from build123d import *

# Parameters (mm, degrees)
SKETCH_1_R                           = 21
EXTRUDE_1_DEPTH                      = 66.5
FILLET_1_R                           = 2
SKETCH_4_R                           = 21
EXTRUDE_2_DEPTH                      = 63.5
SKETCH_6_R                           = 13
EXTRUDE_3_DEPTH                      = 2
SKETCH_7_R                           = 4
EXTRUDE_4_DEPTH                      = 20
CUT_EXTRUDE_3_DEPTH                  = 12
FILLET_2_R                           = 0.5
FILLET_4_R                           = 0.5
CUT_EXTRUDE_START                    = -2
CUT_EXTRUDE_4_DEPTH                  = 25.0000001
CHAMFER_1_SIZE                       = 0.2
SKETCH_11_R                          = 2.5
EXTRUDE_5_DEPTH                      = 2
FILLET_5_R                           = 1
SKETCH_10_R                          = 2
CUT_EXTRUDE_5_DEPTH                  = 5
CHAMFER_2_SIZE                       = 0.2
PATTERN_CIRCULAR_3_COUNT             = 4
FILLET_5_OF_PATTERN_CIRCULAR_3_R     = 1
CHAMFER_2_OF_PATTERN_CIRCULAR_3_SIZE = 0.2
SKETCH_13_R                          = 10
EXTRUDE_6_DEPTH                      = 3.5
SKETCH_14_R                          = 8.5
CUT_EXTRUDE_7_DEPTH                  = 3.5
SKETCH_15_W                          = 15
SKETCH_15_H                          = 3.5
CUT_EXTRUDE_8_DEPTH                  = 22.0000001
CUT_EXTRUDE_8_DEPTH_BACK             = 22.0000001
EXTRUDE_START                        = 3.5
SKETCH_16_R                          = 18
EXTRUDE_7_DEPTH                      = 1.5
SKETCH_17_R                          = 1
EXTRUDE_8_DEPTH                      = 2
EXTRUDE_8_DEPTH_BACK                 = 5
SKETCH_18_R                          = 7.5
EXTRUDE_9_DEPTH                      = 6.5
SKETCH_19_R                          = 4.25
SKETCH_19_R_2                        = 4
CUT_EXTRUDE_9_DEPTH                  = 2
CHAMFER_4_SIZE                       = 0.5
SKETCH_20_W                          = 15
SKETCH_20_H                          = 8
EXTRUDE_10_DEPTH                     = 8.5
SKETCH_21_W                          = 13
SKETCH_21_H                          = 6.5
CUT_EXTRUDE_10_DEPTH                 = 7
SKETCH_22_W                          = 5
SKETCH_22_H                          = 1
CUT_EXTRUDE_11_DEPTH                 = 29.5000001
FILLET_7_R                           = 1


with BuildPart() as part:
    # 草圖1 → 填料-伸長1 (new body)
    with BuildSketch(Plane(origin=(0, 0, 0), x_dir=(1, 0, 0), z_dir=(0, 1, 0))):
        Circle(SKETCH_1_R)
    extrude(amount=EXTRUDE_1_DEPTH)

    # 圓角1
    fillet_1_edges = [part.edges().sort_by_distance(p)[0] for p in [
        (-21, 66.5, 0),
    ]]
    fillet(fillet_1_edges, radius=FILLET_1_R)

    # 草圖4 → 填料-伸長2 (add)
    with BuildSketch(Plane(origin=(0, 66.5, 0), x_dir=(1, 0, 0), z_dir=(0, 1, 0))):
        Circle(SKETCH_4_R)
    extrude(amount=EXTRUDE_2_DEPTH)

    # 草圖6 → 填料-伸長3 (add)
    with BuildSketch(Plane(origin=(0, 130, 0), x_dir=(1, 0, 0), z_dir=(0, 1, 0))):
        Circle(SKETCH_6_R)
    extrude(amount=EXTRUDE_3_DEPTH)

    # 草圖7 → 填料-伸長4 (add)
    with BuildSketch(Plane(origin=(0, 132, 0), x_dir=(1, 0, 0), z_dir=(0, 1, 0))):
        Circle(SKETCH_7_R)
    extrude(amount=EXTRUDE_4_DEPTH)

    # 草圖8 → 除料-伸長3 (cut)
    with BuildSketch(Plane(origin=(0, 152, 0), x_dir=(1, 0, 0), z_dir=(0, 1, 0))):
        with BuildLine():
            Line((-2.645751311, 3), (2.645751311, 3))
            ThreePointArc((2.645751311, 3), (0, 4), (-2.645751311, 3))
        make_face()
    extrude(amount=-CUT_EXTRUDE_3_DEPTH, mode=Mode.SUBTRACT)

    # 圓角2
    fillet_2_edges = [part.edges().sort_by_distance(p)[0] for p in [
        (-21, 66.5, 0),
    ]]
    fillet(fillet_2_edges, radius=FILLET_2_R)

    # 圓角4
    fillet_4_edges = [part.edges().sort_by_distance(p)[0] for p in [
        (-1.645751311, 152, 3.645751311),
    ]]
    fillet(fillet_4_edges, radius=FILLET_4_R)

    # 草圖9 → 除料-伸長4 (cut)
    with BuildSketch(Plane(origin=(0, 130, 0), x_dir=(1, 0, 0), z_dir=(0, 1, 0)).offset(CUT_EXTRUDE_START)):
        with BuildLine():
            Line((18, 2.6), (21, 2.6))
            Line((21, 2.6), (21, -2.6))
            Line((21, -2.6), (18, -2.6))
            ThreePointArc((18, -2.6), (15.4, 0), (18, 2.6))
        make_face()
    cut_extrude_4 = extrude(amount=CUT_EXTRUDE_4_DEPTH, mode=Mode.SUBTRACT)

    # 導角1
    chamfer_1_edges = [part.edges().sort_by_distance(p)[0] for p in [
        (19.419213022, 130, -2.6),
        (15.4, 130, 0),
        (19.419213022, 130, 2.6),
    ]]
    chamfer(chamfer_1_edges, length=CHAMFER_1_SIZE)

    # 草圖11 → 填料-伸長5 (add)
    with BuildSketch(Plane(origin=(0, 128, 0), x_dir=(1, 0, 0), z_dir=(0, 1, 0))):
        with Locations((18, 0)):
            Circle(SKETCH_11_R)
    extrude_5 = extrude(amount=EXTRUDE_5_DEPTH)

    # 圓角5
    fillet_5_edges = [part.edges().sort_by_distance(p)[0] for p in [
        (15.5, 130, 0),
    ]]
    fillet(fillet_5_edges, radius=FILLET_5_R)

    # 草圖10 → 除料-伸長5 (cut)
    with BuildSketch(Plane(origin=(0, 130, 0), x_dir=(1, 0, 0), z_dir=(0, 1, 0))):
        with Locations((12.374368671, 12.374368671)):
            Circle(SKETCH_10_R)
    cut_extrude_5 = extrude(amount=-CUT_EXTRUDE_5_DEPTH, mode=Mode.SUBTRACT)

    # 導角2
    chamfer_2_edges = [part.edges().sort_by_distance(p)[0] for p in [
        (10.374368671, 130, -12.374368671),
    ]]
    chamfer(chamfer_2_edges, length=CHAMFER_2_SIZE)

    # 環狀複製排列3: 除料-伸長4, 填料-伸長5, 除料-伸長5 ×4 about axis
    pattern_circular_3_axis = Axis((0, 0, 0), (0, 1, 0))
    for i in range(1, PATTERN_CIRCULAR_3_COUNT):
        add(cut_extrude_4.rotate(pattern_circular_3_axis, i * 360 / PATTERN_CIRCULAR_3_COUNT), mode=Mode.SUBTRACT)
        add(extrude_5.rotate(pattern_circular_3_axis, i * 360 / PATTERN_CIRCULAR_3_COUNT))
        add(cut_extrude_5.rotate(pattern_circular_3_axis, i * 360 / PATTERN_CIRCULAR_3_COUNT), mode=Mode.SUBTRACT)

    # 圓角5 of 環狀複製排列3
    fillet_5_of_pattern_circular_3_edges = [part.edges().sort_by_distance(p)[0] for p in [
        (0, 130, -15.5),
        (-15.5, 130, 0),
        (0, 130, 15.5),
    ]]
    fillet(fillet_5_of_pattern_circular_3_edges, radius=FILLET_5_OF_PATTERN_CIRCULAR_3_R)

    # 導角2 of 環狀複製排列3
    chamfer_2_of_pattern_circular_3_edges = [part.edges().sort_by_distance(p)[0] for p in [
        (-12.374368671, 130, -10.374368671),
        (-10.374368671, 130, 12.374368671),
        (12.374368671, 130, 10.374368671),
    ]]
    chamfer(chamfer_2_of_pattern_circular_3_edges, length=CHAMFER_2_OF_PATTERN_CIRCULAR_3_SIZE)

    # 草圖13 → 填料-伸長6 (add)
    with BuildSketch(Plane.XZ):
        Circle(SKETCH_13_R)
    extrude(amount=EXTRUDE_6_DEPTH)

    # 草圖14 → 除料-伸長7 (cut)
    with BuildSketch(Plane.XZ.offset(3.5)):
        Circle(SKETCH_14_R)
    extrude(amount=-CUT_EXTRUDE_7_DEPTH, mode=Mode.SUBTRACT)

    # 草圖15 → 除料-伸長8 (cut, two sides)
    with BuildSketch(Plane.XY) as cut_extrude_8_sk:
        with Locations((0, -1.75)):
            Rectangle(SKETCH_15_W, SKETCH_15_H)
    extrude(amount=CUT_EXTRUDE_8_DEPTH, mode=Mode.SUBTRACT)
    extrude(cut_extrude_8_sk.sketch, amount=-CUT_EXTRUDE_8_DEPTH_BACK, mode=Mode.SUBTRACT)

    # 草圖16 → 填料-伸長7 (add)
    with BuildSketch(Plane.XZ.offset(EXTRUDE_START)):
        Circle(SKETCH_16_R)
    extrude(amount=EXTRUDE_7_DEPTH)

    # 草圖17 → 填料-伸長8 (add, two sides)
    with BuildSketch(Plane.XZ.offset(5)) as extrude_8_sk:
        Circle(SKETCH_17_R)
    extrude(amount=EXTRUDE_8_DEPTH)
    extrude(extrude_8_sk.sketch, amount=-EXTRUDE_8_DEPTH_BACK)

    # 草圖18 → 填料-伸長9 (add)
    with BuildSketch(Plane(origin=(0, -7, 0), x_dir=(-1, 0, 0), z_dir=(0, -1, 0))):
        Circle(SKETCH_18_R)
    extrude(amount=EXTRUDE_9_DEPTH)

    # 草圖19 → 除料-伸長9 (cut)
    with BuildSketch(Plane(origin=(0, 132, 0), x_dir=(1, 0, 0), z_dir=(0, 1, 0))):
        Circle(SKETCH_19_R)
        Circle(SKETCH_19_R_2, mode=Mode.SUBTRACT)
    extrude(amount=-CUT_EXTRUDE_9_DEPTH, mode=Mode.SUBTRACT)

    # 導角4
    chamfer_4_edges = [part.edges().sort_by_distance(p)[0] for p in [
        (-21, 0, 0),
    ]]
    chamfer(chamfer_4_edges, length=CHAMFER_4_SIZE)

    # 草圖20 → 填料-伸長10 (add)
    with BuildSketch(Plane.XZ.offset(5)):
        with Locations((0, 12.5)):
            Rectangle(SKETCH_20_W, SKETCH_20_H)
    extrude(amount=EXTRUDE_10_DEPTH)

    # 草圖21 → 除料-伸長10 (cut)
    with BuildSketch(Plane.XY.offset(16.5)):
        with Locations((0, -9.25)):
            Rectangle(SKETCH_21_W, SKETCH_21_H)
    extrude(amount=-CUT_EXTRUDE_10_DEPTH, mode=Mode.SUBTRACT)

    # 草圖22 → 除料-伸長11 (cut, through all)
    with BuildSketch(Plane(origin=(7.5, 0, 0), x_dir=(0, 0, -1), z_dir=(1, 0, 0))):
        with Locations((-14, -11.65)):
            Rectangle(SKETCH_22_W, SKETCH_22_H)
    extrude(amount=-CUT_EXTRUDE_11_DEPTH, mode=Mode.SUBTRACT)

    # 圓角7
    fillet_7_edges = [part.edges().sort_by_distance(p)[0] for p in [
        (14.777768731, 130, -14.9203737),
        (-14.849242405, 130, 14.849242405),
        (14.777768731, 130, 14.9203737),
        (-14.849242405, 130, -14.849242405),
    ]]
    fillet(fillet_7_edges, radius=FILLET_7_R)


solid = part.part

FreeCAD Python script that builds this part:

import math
import FreeCAD as App
import Part
import Sketcher
Q = App.Units.Quantity


def edges_at(feature, points):
    """Names of the edges that pass closest to the given points."""
    edges = feature.Shape.Edges
    near = lambda p: min(range(len(edges)), key=lambda i: edges[i].distToShape(Part.Vertex(*p))[0])
    return sorted({f"Edge{near(p) + 1}" for p in points})


def add_polygon(sketch, points):
    """Adds a closed chain of lines whose ends are joined by coincident constraints."""
    first, n = sketch.GeometryCount, len(points)
    for a, b in zip(points, points[1:] + points[:1]):
        sketch.addGeometry(Part.LineSegment(App.Vector(*a, 0), App.Vector(*b, 0)), False)
    for i in range(n):
        sketch.addConstraint(Sketcher.Constraint("Coincident", first + i, 2, first + (i + 1) % n, 1))

doc = App.newDocument("Part")
body = doc.addObject("PartDesign::Body", "Body")

# Sketch on XZ plane
sketch1 = doc.addObject("Sketcher::SketchObject", "Sketch")
body.addObject(sketch1)
sketch1.AttachmentSupport = (doc.XZ_Plane, [""])
sketch1.MapMode = "FlatFace"
sketch1.addGeometry(Part.Circle(App.Vector(0, 0, 0), App.Vector(0, 0, 1), 21), False)
sketch1.addConstraint([
    Sketcher.Constraint("Coincident", 0, 3, -1, 1),
    Sketcher.Constraint("Diameter", 0, Q("42 mm")),
])
pad1 = doc.addObject("PartDesign::Pad", "Pad")
body.addObject(pad1)
pad1.Profile = sketch1
pad1.Length = 66.5
pad1.Reversed = True
doc.recompute()

fillet = doc.addObject("PartDesign::Fillet", "Fillet")
body.addObject(fillet)
fillet.Base = (pad1, edges_at(pad1, [(-21, 66.5, 0)]))
fillet.Radius = 2

# Sketch on XZ plane
sketch2 = doc.addObject("Sketcher::SketchObject", "Sketch001")
body.addObject(sketch2)
sketch2.AttachmentSupport = (doc.XZ_Plane, [""])
sketch2.MapMode = "FlatFace"
sketch2.AttachmentOffset = App.Placement(App.Vector(0, 0, -66.5), App.Rotation())
sketch2.addGeometry(Part.Circle(App.Vector(0, 0, 0), App.Vector(0, 0, 1), 21), False)
sketch2.addConstraint([
    Sketcher.Constraint("Coincident", 0, 3, -1, 1),
    Sketcher.Constraint("Diameter", 0, Q("42 mm")),
])
pad2 = doc.addObject("PartDesign::Pad", "Pad001")
body.addObject(pad2)
pad2.Profile = sketch2
pad2.Length = 63.5
pad2.Reversed = True

# Sketch on XZ plane
sketch3 = doc.addObject("Sketcher::SketchObject", "Sketch002")
body.addObject(sketch3)
sketch3.AttachmentSupport = (doc.XZ_Plane, [""])
sketch3.MapMode = "FlatFace"
sketch3.AttachmentOffset = App.Placement(App.Vector(0, 0, -130), App.Rotation())
sketch3.addGeometry(Part.Circle(App.Vector(0, 0, 0), App.Vector(0, 0, 1), 13), False)
sketch3.addConstraint([
    Sketcher.Constraint("Coincident", 0, 3, -1, 1),
    Sketcher.Constraint("Diameter", 0, Q("26 mm")),
])
pad3 = doc.addObject("PartDesign::Pad", "Pad002")
body.addObject(pad3)
pad3.Profile = sketch3
pad3.Length = 2
pad3.Reversed = True

# Sketch on XZ plane
sketch4 = doc.addObject("Sketcher::SketchObject", "Sketch003")
body.addObject(sketch4)
sketch4.AttachmentSupport = (doc.XZ_Plane, [""])
sketch4.MapMode = "FlatFace"
sketch4.AttachmentOffset = App.Placement(App.Vector(0, 0, -132), App.Rotation())
sketch4.addGeometry(Part.Circle(App.Vector(0, 0, 0), App.Vector(0, 0, 1), 4), False)
sketch4.addConstraint([
    Sketcher.Constraint("Coincident", 0, 3, -1, 1),
    Sketcher.Constraint("Diameter", 0, Q("8 mm")),
])
pad4 = doc.addObject("PartDesign::Pad", "Pad003")
body.addObject(pad4)
pad4.Profile = sketch4
pad4.Length = 20
pad4.Reversed = True

# Sketch on XZ plane
sketch5 = doc.addObject("Sketcher::SketchObject", "Sketch004")
body.addObject(sketch5)
sketch5.AttachmentSupport = (doc.XZ_Plane, [""])
sketch5.MapMode = "FlatFace"
sketch5.AttachmentOffset = App.Placement(App.Vector(0, 0, -152), App.Rotation())
sketch5.addGeometry([
    Part.LineSegment(App.Vector(-2.645751, -3, 0), App.Vector(2.645751, -3, 0)),
    Part.ArcOfCircle(Part.Circle(App.Vector(0, 0, 0), App.Vector(0, 0, 1), 4), math.radians(-131.409622), math.radians(-48.590378)),
], False)
sketch5.addConstraint([
    Sketcher.Constraint("Coincident", 0, 1, 1, 1),
    Sketcher.Constraint("Coincident", 1, 2, 0, 2),
    Sketcher.Constraint("Horizontal", 0),
    Sketcher.Constraint("Coincident", 1, 3, -1, 1),
    Sketcher.Constraint("Radius", 1, Q("4 mm")),
    Sketcher.Constraint("DistanceY", 0, 1, -1, 1, Q("3 mm")),
])
pocket1 = doc.addObject("PartDesign::Pocket", "Pocket")
body.addObject(pocket1)
pocket1.Profile = sketch5
pocket1.Length = 12
pocket1.Reversed = True
doc.recompute()

fillet2 = doc.addObject("PartDesign::Fillet", "Fillet001")
body.addObject(fillet2)
fillet2.Base = (pocket1, edges_at(pocket1, [(-21, 66.5, 0)]))
fillet2.Radius = 0.5
doc.recompute()

fillet3 = doc.addObject("PartDesign::Fillet", "Fillet002")
body.addObject(fillet3)
fillet3.Base = (fillet2, edges_at(fillet2, [(-1.646, 152, 3.646)]))
fillet3.Radius = 0.5

# Sketch on XZ plane
sketch6 = doc.addObject("Sketcher::SketchObject", "Sketch005")
body.addObject(sketch6)
sketch6.AttachmentSupport = (doc.XZ_Plane, [""])
sketch6.MapMode = "FlatFace"
sketch6.AttachmentOffset = App.Placement(App.Vector(0, 0, -128), App.Rotation())
sketch6.addGeometry([
    Part.LineSegment(App.Vector(21, -2.6, 0), App.Vector(18, -2.6, 0)),
    Part.ArcOfCircle(Part.Circle(App.Vector(18, 0, 0), App.Vector(0, 0, 1), 2.6), math.radians(90), math.radians(270)),
    Part.LineSegment(App.Vector(18, 2.6, 0), App.Vector(21, 2.6, 0)),
    Part.LineSegment(App.Vector(21, 2.6, 0), App.Vector(21, -2.6, 0)),
], False)
sketch6.addConstraint([
    Sketcher.Constraint("Tangent", 0, 2, 1, 2),
    Sketcher.Constraint("Tangent", 1, 1, 2, 1),
    Sketcher.Constraint("Coincident", 2, 2, 3, 1),
    Sketcher.Constraint("Coincident", 3, 2, 0, 1),
    Sketcher.Constraint("Horizontal", 0),
    Sketcher.Constraint("Horizontal", 2),
    Sketcher.Constraint("Vertical", 3),
    Sketcher.Constraint("PointOnObject", 1, 3, -1),
    Sketcher.Constraint("Radius", 1, Q("2.6 mm")),
    Sketcher.Constraint("DistanceX", 0, 2, 0, 1, Q("3 mm")),
    Sketcher.Constraint("DistanceX", -1, 1, 1, 3, Q("18 mm")),
])
pocket2 = doc.addObject("PartDesign::Pocket", "Pocket001")
body.addObject(pocket2)
pocket2.Profile = sketch6
pocket2.Length = 25
doc.recompute()

chamfer = doc.addObject("PartDesign::Chamfer", "Chamfer")
body.addObject(chamfer)
chamfer.Base = (pocket2, edges_at(pocket2, [(19.419, 130, -2.6), (15.4, 130, 0), (19.419, 130, 2.6)]))
chamfer.Size = 0.2

# Sketch on XZ plane
sketch7 = doc.addObject("Sketcher::SketchObject", "Sketch006")
body.addObject(sketch7)
sketch7.AttachmentSupport = (doc.XZ_Plane, [""])
sketch7.MapMode = "FlatFace"
sketch7.AttachmentOffset = App.Placement(App.Vector(0, 0, -128), App.Rotation())
sketch7.addGeometry(Part.Circle(App.Vector(18, 0, 0), App.Vector(0, 0, 1), 2.5), False)
sketch7.addConstraint([
    Sketcher.Constraint("PointOnObject", 0, 3, -1),
    Sketcher.Constraint("Diameter", 0, Q("5 mm")),
    Sketcher.Constraint("DistanceX", -1, 1, 0, 3, Q("18 mm")),
])
pad5 = doc.addObject("PartDesign::Pad", "Pad004")
body.addObject(pad5)
pad5.Profile = sketch7
pad5.Length = 2
pad5.Reversed = True
doc.recompute()

fillet4 = doc.addObject("PartDesign::Fillet", "Fillet003")
body.addObject(fillet4)
fillet4.Base = (pad5, edges_at(pad5, [(15.5, 130, 0)]))
fillet4.Radius = 1

# Sketch on XZ plane
sketch8 = doc.addObject("Sketcher::SketchObject", "Sketch007")
body.addObject(sketch8)
sketch8.AttachmentSupport = (doc.XZ_Plane, [""])
sketch8.MapMode = "FlatFace"
sketch8.AttachmentOffset = App.Placement(App.Vector(0, 0, -130), App.Rotation())
sketch8.addGeometry(Part.Circle(App.Vector(12.374369, -12.374369, 0), App.Vector(0, 0, 1), 2), False)
sketch8.addConstraint([
    Sketcher.Constraint("Diameter", 0, Q("4 mm")),
    Sketcher.Constraint("DistanceX", -1, 1, 0, 3, Q("12.374369 mm")),
    Sketcher.Constraint("DistanceY", 0, 3, -1, 1, Q("12.374369 mm")),
])
pocket3 = doc.addObject("PartDesign::Pocket", "Pocket002")
body.addObject(pocket3)
pocket3.Profile = sketch8
pocket3.Length = 5
pocket3.Reversed = True
doc.recompute()

chamfer2 = doc.addObject("PartDesign::Chamfer", "Chamfer001")
body.addObject(chamfer2)
chamfer2.Base = (pocket3, edges_at(pocket3, [(10.374, 130, -12.374)]))
chamfer2.Size = 0.2
doc.recompute()

polarpattern = doc.addObject("PartDesign::PolarPattern", "PolarPattern")
body.addObject(polarpattern)
polarpattern.Originals = [pocket2, pad5, pocket3]
polarpattern.Axis = (doc.Y_Axis, [""])
polarpattern.Angle = 360
polarpattern.Occurrences = 4
body.Tip = polarpattern
doc.recompute()

fillet5 = doc.addObject("PartDesign::Fillet", "Fillet004")
body.addObject(fillet5)
fillet5.Base = (polarpattern, edges_at(polarpattern, [(0, 130, -15.5), (-15.5, 130, 0), (0, 130, 15.5)]))
fillet5.Radius = 1
doc.recompute()

chamfer3 = doc.addObject("PartDesign::Chamfer", "Chamfer002")
body.addObject(chamfer3)
chamfer3.Base = (fillet5, edges_at(fillet5, [(-12.374, 130, -10.374), (-10.374, 130, 12.374), (12.374, 130, 10.374)]))
chamfer3.Size = 0.2

# Sketch on XZ plane
sketch9 = doc.addObject("Sketcher::SketchObject", "Sketch008")
body.addObject(sketch9)
sketch9.AttachmentSupport = (doc.XZ_Plane, [""])
sketch9.MapMode = "FlatFace"
sketch9.addGeometry(Part.Circle(App.Vector(0, 0, 0), App.Vector(0, 0, 1), 10), False)
sketch9.addConstraint([
    Sketcher.Constraint("Coincident", 0, 3, -1, 1),
    Sketcher.Constraint("Diameter", 0, Q("20 mm")),
])
pad6 = doc.addObject("PartDesign::Pad", "Pad005")
body.addObject(pad6)
pad6.Profile = sketch9
pad6.Length = 3.5

# Sketch on XZ plane
sketch10 = doc.addObject("Sketcher::SketchObject", "Sketch009")
body.addObject(sketch10)
sketch10.AttachmentSupport = (doc.XZ_Plane, [""])
sketch10.MapMode = "FlatFace"
sketch10.AttachmentOffset = App.Placement(App.Vector(0, 0, 3.5), App.Rotation())
sketch10.addGeometry(Part.Circle(App.Vector(0, 0, 0), App.Vector(0, 0, 1), 8.5), False)
sketch10.addConstraint([
    Sketcher.Constraint("Coincident", 0, 3, -1, 1),
    Sketcher.Constraint("Diameter", 0, Q("17 mm")),
])
pocket4 = doc.addObject("PartDesign::Pocket", "Pocket003")
body.addObject(pocket4)
pocket4.Profile = sketch10
pocket4.Length = 3.5

# Sketch on XY plane
sketch11 = doc.addObject("Sketcher::SketchObject", "Sketch010")
body.addObject(sketch11)
sketch11.AttachmentSupport = (doc.XY_Plane, [""])
sketch11.MapMode = "FlatFace"
add_polygon(sketch11, [(-7.5, 0), (-7.5, -3.5), (7.5, -3.5), (7.5, 0)])  # lines 0-3
sketch11.addConstraint([
    Sketcher.Constraint("Vertical", 0),
    Sketcher.Constraint("Horizontal", 1),
    Sketcher.Constraint("Vertical", 2),
    Sketcher.Constraint("Horizontal", 3),
    Sketcher.Constraint("Symmetric", 2, 2, 3, 2, -1, 1),
    Sketcher.Constraint("DistanceX", 1, 1, 1, 2, Q("15 mm")),
    Sketcher.Constraint("DistanceY", 0, 2, 0, 1, Q("3.5 mm")),
])
pocket5 = doc.addObject("PartDesign::Pocket", "Pocket004")
body.addObject(pocket5)
pocket5.Profile = sketch11
pocket5.Type = "ThroughAll"
pocket5.Midplane = True

# Sketch on XZ plane
sketch12 = doc.addObject("Sketcher::SketchObject", "Sketch011")
body.addObject(sketch12)
sketch12.AttachmentSupport = (doc.XZ_Plane, [""])
sketch12.MapMode = "FlatFace"
sketch12.AttachmentOffset = App.Placement(App.Vector(0, 0, 3.5), App.Rotation())
sketch12.addGeometry(Part.Circle(App.Vector(0, 0, 0), App.Vector(0, 0, 1), 18), False)
sketch12.addConstraint([
    Sketcher.Constraint("Coincident", 0, 3, -1, 1),
    Sketcher.Constraint("Diameter", 0, Q("36 mm")),
])
pad7 = doc.addObject("PartDesign::Pad", "Pad006")
body.addObject(pad7)
pad7.Profile = sketch12
pad7.Length = 1.5

# Sketch on XZ plane
sketch13 = doc.addObject("Sketcher::SketchObject", "Sketch012")
body.addObject(sketch13)
sketch13.AttachmentSupport = (doc.XZ_Plane, [""])
sketch13.MapMode = "FlatFace"
sketch13.AttachmentOffset = App.Placement(App.Vector(0, 0, 5), App.Rotation())
sketch13.addGeometry(Part.Circle(App.Vector(0, 0, 0), App.Vector(0, 0, 1), 1), False)
sketch13.addConstraint([
    Sketcher.Constraint("Coincident", 0, 3, -1, 1),
    Sketcher.Constraint("Diameter", 0, Q("2 mm")),
])
pad8 = doc.addObject("PartDesign::Pad", "Pad007")
body.addObject(pad8)
pad8.Profile = sketch13
pad8.Type = "TwoLengths"
pad8.Length = 2
pad8.Length2 = 5

# Sketch on XZ plane
sketch14 = doc.addObject("Sketcher::SketchObject", "Sketch013")
body.addObject(sketch14)
sketch14.AttachmentSupport = (doc.XZ_Plane, [""])
sketch14.MapMode = "FlatFace"
sketch14.AttachmentOffset = App.Placement(App.Vector(0, 0, 7), App.Rotation())
sketch14.addGeometry(Part.Circle(App.Vector(0, 0, 0), App.Vector(0, 0, 1), 7.5), False)
sketch14.addConstraint([
    Sketcher.Constraint("Coincident", 0, 3, -1, 1),
    Sketcher.Constraint("Diameter", 0, Q("15 mm")),
])
pad9 = doc.addObject("PartDesign::Pad", "Pad008")
body.addObject(pad9)
pad9.Profile = sketch14
pad9.Length = 6.5

# Sketch on XZ plane
sketch15 = doc.addObject("Sketcher::SketchObject", "Sketch014")
body.addObject(sketch15)
sketch15.AttachmentSupport = (doc.XZ_Plane, [""])
sketch15.MapMode = "FlatFace"
sketch15.AttachmentOffset = App.Placement(App.Vector(0, 0, -132), App.Rotation())
sketch15.addGeometry([
    Part.Circle(App.Vector(0, 0, 0), App.Vector(0, 0, 1), 4.25),
    Part.Circle(App.Vector(0, 0, 0), App.Vector(0, 0, 1), 4),
], False)
sketch15.addConstraint([
    Sketcher.Constraint("Coincident", 0, 3, -1, 1),
    Sketcher.Constraint("Coincident", 1, 3, -1, 1),
    Sketcher.Constraint("Diameter", 1, Q("8 mm")),
    Sketcher.Constraint("Diameter", 0, Q("8.5 mm")),
])
pocket6 = doc.addObject("PartDesign::Pocket", "Pocket005")
body.addObject(pocket6)
pocket6.Profile = sketch15
pocket6.Length = 2
pocket6.Reversed = True
doc.recompute()

chamfer4 = doc.addObject("PartDesign::Chamfer", "Chamfer003")
body.addObject(chamfer4)
chamfer4.Base = (pocket6, edges_at(pocket6, [(-21, 0, 0)]))
chamfer4.Size = 0.5

# Sketch on XZ plane
sketch16 = doc.addObject("Sketcher::SketchObject", "Sketch015")
body.addObject(sketch16)
sketch16.AttachmentSupport = (doc.XZ_Plane, [""])
sketch16.MapMode = "FlatFace"
sketch16.AttachmentOffset = App.Placement(App.Vector(0, 0, 5), App.Rotation())
add_polygon(sketch16, [(-7.5, 16.5), (-7.5, 8.5), (7.5, 8.5), (7.5, 16.5)])  # lines 0-3
sketch16.addConstraint([
    Sketcher.Constraint("Vertical", 0),
    Sketcher.Constraint("Horizontal", 1),
    Sketcher.Constraint("Vertical", 2),
    Sketcher.Constraint("Horizontal", 3),
    Sketcher.Constraint("DistanceX", 1, 1, 1, 2, Q("15 mm")),
    Sketcher.Constraint("DistanceY", 0, 2, 0, 1, Q("8 mm")),
    Sketcher.Constraint("DistanceX", 0, 2, -1, 1, Q("7.5 mm")),
    Sketcher.Constraint("DistanceY", -1, 1, 0, 2, Q("8.5 mm")),
])
pad10 = doc.addObject("PartDesign::Pad", "Pad009")
body.addObject(pad10)
pad10.Profile = sketch16
pad10.Length = 8.5

# Sketch on XY plane
sketch17 = doc.addObject("Sketcher::SketchObject", "Sketch016")
body.addObject(sketch17)
sketch17.AttachmentSupport = (doc.XY_Plane, [""])
sketch17.MapMode = "FlatFace"
sketch17.AttachmentOffset = App.Placement(App.Vector(0, 0, 16.5), App.Rotation())
add_polygon(sketch17, [(-6.5, -6), (-6.5, -12.5), (6.5, -12.5), (6.5, -6)])  # lines 0-3
sketch17.addConstraint([
    Sketcher.Constraint("Vertical", 0),
    Sketcher.Constraint("Horizontal", 1),
    Sketcher.Constraint("Vertical", 2),
    Sketcher.Constraint("Horizontal", 3),
    Sketcher.Constraint("DistanceX", 1, 1, 1, 2, Q("13 mm")),
    Sketcher.Constraint("DistanceY", 0, 2, 0, 1, Q("6.5 mm")),
    Sketcher.Constraint("DistanceY", 2, 2, -1, 1, Q("6 mm")),
    Sketcher.Constraint("DistanceX", 0, 2, -1, 1, Q("6.5 mm")),
])
pocket7 = doc.addObject("PartDesign::Pocket", "Pocket006")
body.addObject(pocket7)
pocket7.Profile = sketch17
pocket7.Length = 7

# Sketch on YZ plane
sketch18 = doc.addObject("Sketcher::SketchObject", "Sketch017")
body.addObject(sketch18)
sketch18.AttachmentSupport = (doc.YZ_Plane, [""])
sketch18.MapMode = "FlatFace"
sketch18.AttachmentOffset = App.Placement(App.Vector(0, 0, 7.5), App.Rotation())
add_polygon(sketch18, [(-11.15, 16.5), (-12.15, 16.5), (-12.15, 11.5), (-11.15, 11.5)])  # lines 0-3
sketch18.addConstraint([
    Sketcher.Constraint("Horizontal", 0),
    Sketcher.Constraint("Vertical", 1),
    Sketcher.Constraint("Horizontal", 2),
    Sketcher.Constraint("Vertical", 3),
    Sketcher.Constraint("DistanceX", 0, 2, 0, 1, Q("1 mm")),
    Sketcher.Constraint("DistanceY", 1, 2, 1, 1, Q("5 mm")),
    Sketcher.Constraint("DistanceY", -1, 1, 0, 2, Q("16.5 mm")),
    Sketcher.Constraint("DistanceX", 0, 2, -1, 1, Q("12.15 mm")),
])
pocket8 = doc.addObject("PartDesign::Pocket", "Pocket007")
body.addObject(pocket8)
pocket8.Profile = sketch18
pocket8.Type = "ThroughAll"
doc.recompute()

fillet6 = doc.addObject("PartDesign::Fillet", "Fillet005")
body.addObject(fillet6)
fillet6.Base = (pocket8, edges_at(pocket8, [
    (14.778, 130, -14.92),
    (-14.849, 130, 14.849),
    (14.778, 130, 14.92),
    (-14.849, 130, -14.849),
]))
fillet6.Radius = 1

doc.recompute()
